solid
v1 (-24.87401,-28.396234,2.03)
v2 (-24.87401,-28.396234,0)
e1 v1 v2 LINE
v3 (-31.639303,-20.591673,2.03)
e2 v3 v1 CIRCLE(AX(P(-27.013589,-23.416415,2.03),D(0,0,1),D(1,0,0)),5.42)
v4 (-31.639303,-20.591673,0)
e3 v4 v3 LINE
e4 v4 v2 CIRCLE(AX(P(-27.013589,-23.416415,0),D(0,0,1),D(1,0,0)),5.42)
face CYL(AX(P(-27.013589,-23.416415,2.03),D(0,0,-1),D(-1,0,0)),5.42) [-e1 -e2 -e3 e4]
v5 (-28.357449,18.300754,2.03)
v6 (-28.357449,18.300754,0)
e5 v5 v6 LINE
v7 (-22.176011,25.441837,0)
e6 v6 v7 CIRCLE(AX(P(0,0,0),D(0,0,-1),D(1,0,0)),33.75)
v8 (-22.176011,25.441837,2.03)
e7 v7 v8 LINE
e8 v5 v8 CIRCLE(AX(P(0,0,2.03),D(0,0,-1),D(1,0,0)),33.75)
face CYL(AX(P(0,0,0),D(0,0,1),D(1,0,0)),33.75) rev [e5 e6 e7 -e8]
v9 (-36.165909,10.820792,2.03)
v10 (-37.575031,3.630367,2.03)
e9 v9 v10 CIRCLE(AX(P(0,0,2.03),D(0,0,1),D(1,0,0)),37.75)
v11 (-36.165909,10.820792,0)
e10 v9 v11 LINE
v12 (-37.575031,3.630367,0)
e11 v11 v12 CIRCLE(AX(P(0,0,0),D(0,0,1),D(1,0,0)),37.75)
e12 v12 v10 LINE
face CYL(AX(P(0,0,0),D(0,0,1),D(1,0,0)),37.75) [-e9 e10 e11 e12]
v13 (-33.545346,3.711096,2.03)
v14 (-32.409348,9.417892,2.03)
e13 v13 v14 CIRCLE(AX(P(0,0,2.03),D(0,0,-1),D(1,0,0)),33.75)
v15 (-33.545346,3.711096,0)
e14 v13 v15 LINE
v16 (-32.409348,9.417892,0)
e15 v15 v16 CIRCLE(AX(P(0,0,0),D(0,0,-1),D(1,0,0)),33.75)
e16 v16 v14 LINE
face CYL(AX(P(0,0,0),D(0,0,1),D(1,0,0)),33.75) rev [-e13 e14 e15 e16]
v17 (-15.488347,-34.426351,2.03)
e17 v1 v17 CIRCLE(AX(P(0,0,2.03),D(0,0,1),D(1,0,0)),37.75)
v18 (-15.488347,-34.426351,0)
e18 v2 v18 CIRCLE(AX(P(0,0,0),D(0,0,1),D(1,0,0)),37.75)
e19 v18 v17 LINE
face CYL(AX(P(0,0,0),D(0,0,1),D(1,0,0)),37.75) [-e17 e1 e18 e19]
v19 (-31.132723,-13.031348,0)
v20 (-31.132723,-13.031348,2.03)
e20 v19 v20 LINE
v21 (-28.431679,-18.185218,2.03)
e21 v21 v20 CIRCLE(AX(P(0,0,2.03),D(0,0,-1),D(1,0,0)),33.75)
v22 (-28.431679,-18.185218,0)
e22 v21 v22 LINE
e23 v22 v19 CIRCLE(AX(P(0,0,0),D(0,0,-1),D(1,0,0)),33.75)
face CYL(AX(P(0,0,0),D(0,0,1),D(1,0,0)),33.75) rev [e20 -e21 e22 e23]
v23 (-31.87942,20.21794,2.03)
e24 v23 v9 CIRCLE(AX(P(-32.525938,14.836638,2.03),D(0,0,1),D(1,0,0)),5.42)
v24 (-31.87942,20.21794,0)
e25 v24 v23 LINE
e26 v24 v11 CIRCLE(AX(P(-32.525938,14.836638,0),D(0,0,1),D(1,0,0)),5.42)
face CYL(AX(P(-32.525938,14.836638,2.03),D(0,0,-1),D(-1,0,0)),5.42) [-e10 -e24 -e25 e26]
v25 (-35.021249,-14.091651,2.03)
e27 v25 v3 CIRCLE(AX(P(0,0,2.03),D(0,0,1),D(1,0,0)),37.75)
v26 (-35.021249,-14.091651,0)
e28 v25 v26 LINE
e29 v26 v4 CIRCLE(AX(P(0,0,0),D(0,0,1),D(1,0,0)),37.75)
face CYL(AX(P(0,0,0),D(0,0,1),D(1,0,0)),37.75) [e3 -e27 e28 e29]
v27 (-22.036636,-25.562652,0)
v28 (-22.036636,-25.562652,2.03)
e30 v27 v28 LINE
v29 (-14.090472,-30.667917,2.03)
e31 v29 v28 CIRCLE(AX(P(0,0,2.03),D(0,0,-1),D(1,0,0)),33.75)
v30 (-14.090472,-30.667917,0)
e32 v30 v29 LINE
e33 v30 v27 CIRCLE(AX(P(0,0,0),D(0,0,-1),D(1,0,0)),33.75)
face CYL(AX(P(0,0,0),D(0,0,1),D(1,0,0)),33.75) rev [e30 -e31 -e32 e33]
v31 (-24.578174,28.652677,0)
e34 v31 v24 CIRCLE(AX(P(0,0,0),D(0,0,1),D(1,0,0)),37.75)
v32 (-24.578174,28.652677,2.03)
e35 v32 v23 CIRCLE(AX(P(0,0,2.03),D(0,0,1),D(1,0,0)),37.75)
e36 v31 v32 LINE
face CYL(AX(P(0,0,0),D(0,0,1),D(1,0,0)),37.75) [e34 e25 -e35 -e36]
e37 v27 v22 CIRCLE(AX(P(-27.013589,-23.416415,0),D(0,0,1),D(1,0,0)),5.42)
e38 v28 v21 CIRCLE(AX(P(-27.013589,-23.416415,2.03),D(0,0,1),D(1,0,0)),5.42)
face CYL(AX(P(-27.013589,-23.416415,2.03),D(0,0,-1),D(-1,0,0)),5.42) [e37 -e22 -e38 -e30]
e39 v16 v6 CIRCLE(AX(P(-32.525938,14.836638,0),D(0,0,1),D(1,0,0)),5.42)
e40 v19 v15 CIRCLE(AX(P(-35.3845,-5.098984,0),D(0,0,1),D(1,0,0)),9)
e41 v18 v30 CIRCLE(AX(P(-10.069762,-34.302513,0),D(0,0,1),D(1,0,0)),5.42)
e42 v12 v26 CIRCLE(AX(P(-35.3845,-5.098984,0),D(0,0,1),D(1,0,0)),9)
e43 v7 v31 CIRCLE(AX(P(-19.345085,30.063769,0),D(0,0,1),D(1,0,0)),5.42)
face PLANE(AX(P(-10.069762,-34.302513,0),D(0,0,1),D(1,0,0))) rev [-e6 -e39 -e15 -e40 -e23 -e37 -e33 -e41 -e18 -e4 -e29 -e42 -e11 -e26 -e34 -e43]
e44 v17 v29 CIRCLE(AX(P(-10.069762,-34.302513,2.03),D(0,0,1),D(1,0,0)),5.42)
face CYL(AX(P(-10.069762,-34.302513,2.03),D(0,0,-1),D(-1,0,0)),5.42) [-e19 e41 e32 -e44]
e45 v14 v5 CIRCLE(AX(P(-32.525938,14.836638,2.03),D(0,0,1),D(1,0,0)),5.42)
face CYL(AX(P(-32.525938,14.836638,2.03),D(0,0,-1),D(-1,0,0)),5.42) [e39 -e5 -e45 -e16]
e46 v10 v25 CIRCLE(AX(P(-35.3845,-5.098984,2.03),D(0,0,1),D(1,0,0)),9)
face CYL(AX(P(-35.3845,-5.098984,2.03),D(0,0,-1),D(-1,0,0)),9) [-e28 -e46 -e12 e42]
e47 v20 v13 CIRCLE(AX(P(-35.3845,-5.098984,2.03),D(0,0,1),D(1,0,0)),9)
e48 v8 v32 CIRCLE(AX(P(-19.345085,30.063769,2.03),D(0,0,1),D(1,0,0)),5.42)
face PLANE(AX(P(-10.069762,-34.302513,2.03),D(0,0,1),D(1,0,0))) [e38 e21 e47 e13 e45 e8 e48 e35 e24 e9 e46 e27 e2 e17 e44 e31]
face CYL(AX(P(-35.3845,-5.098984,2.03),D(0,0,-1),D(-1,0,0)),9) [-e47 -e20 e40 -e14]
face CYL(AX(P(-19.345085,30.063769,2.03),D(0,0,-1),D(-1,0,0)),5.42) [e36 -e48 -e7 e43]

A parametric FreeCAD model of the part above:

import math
import FreeCAD as App
import Part
import Sketcher

doc = App.newDocument("Part")
params = doc.addObject("Spreadsheet::Sheet", "Params")
for row, (alias, value) in enumerate([
    ("sketch1_diameter", "10.84 mm"),
    ("pad1_length", "2.03 mm"),
    ("sketch2_diameter", "10.84 mm"),
    ("pad2_length", "2.03 mm"),
    ("sketch3_diameter", "10.84 mm"),
    ("pad3_length", "2.03 mm"),
    ("sketch4_diameter", "10.84 mm"),
    ("pad4_length", "2.03 mm"),
    ("sketch5_diameter", "18 mm"),
    ("pad5_length", "2.03 mm"),
    ("sketch6_radius", "37.75 mm"),
    ("sketch6_radius2", "33.75 mm"),
    ("pad6_length", "2.03 mm"),
], start=1):
    params.set(f"A{row}", alias)
    params.set(f"B{row}", "=" + value)
    params.setAlias(f"B{row}", alias)

body = doc.addObject("PartDesign::Body", "Body")

# Sketch on XY plane
sketch1 = doc.addObject("Sketcher::SketchObject", "Sketch")
body.addObject(sketch1)
sketch1.AttachmentSupport = (doc.XY_Plane, [""])
sketch1.MapMode = "FlatFace"
sketch1.addGeometry(Part.Circle(App.Vector(-10.069762, -34.302513, 0), App.Vector(0, 0, 1), 5.42), False)
sketch1.addConstraint([
    Sketcher.Constraint("Diameter", 0, 10.84),
    Sketcher.Constraint("DistanceX", 0, 3, -1, 1, 10.069762),
    Sketcher.Constraint("DistanceY", 0, 3, -1, 1, 34.302513),
])
sketch1.setExpression("Constraints[0]", "Params.sketch1_diameter")
pad1 = doc.addObject("PartDesign::Pad", "Pad")
body.addObject(pad1)
pad1.Profile = sketch1
pad1.setExpression("Length", "Params.pad1_length")
body2 = doc.addObject("PartDesign::Body", "Body001")

# Sketch on XY plane
sketch2 = doc.addObject("Sketcher::SketchObject", "Sketch001")
body2.addObject(sketch2)
sketch2.AttachmentSupport = (doc.getObject("XY_Plane001"), [""])
sketch2.MapMode = "FlatFace"
sketch2.addGeometry(Part.Circle(App.Vector(-27.013589, -23.416415, 0), App.Vector(0, 0, 1), 5.42), False)
sketch2.addConstraint([
    Sketcher.Constraint("Diameter", 0, 10.84),
    Sketcher.Constraint("DistanceX", 0, 3, -1, 1, 27.013589),
    Sketcher.Constraint("DistanceY", 0, 3, -1, 1, 23.416415),
])
sketch2.setExpression("Constraints[0]", "Params.sketch2_diameter")
pad2 = doc.addObject("PartDesign::Pad", "Pad001")
body2.addObject(pad2)
pad2.Profile = sketch2
pad2.setExpression("Length", "Params.pad2_length")
body3 = doc.addObject("PartDesign::Body", "Body002")

# Sketch on XY plane
sketch3 = doc.addObject("Sketcher::SketchObject", "Sketch002")
body3.addObject(sketch3)
sketch3.AttachmentSupport = (doc.getObject("XY_Plane002"), [""])
sketch3.MapMode = "FlatFace"
sketch3.addGeometry(Part.Circle(App.Vector(-32.525938, 14.836638, 0), App.Vector(0, 0, 1), 5.42), False)
sketch3.addConstraint([
    Sketcher.Constraint("Diameter", 0, 10.84),
    Sketcher.Constraint("DistanceX", 0, 3, -1, 1, 32.525938),
    Sketcher.Constraint("DistanceY", -1, 1, 0, 3, 14.836638),
])
sketch3.setExpression("Constraints[0]", "Params.sketch3_diameter")
pad3 = doc.addObject("PartDesign::Pad", "Pad002")
body3.addObject(pad3)
pad3.Profile = sketch3
pad3.setExpression("Length", "Params.pad3_length")
body4 = doc.addObject("PartDesign::Body", "Body003")

# Sketch on XY plane
sketch4 = doc.addObject("Sketcher::SketchObject", "Sketch003")
body4.addObject(sketch4)
sketch4.AttachmentSupport = (doc.getObject("XY_Plane003"), [""])
sketch4.MapMode = "FlatFace"
sketch4.addGeometry(Part.Circle(App.Vector(-19.345085, 30.063769, 0), App.Vector(0, 0, 1), 5.42), False)
sketch4.addConstraint([
    Sketcher.Constraint("Diameter", 0, 10.84),
    Sketcher.Constraint("DistanceY", -1, 1, 0, 3, 30.063769),
    Sketcher.Constraint("DistanceX", 0, 3, -1, 1, 19.345085),
])
sketch4.setExpression("Constraints[0]", "Params.sketch4_diameter")
pad4 = doc.addObject("PartDesign::Pad", "Pad003")
body4.addObject(pad4)
pad4.Profile = sketch4
pad4.setExpression("Length", "Params.pad4_length")
body5 = doc.addObject("PartDesign::Body", "Body004")

# Sketch on XY plane
sketch5 = doc.addObject("Sketcher::SketchObject", "Sketch004")
body5.addObject(sketch5)
sketch5.AttachmentSupport = (doc.getObject("XY_Plane004"), [""])
sketch5.MapMode = "FlatFace"
sketch5.addGeometry(Part.Circle(App.Vector(-35.3845, -5.098984, 0), App.Vector(0, 0, 1), 9), False)
sketch5.addConstraint([
    Sketcher.Constraint("Diameter", 0, 18.0),
    Sketcher.Constraint("DistanceX", 0, 3, -1, 1, 35.3845),
    Sketcher.Constraint("DistanceY", 0, 3, -1, 1, 5.098984),
])
sketch5.setExpression("Constraints[0]", "Params.sketch5_diameter")
pad5 = doc.addObject("PartDesign::Pad", "Pad004")
body5.addObject(pad5)
pad5.Profile = sketch5
pad5.setExpression("Length", "Params.pad5_length")
body.AllowCompound = True
doc.recompute()

boolean = doc.addObject("PartDesign::Boolean", "Boolean")
body.addObject(boolean)
boolean.Type = "Fuse"
boolean.addObjects([body2])
doc.recompute()

boolean2 = doc.addObject("PartDesign::Boolean", "Boolean001")
body.addObject(boolean2)
boolean2.Type = "Fuse"
boolean2.addObjects([body3])
doc.recompute()

boolean3 = doc.addObject("PartDesign::Boolean", "Boolean002")
body.addObject(boolean3)
boolean3.Type = "Fuse"
boolean3.addObjects([body4])
doc.recompute()

boolean4 = doc.addObject("PartDesign::Boolean", "Boolean003")
body.addObject(boolean4)
boolean4.Type = "Fuse"
boolean4.addObjects([body5])

# Sketch on XY plane
sketch6 = doc.addObject("Sketcher::SketchObject", "Sketch005")
body.addObject(sketch6)
sketch6.AttachmentSupport = (doc.XY_Plane, [""])
sketch6.MapMode = "FlatFace"
sketch6.AttachmentOffset = App.Placement(App.Vector(0, 0, 2.03), App.Rotation())
sketch6.addGeometry([
    Part.LineSegment(App.Vector(-22.176011, 25.441837, 0), App.Vector(-24.578174, 28.652677, 0)),
    Part.ArcOfCircle(Part.Circle(App.Vector(0, 0, 0), App.Vector(0, 0, 1), 37.75), math.radians(130.622886), math.radians(245.777114)),
    Part.LineSegment(App.Vector(-15.488347, -34.426351, 0), App.Vector(-14.090472, -30.667917, 0)),
    Part.ArcOfCircle(Part.Circle(App.Vector(0, 0, 0), App.Vector(0, 0, 1), 33.75), math.radians(131.076566), math.radians(245.323434)),
], False)
sketch6.addConstraint([
    Sketcher.Constraint("Coincident", 0, 2, 1, 1),
    Sketcher.Constraint("Coincident", 1, 2, 2, 1),
    Sketcher.Constraint("Coincident", 2, 2, 3, 2),
    Sketcher.Constraint("Coincident", 3, 1, 0, 1),
    Sketcher.Constraint("Coincident", 1, 3, -1, 1),
    Sketcher.Constraint("Coincident", 3, 3, -1, 1),
    Sketcher.Constraint("Equal", 0, 2),
    Sketcher.Constraint("Radius", 1, 37.75),
    Sketcher.Constraint("Radius", 3, 33.75),
    Sketcher.Constraint("DistanceX", 0, 2, 2, 2, 10.487702),
    Sketcher.Constraint("DistanceY", 1, 2, -1, 1, 34.426351),
    Sketcher.Constraint("DistanceX", 2, 2, -1, 1, 14.090472),
])
sketch6.setExpression("Constraints[7]", "Params.sketch6_radius")
sketch6.setExpression("Constraints[8]", "Params.sketch6_radius2")
pad6 = doc.addObject("PartDesign::Pad", "Pad005")
body.addObject(pad6)
pad6.Profile = sketch6
pad6.setExpression("Length", "Params.pad6_length")
pad6.Reversed = True

doc.recompute()
